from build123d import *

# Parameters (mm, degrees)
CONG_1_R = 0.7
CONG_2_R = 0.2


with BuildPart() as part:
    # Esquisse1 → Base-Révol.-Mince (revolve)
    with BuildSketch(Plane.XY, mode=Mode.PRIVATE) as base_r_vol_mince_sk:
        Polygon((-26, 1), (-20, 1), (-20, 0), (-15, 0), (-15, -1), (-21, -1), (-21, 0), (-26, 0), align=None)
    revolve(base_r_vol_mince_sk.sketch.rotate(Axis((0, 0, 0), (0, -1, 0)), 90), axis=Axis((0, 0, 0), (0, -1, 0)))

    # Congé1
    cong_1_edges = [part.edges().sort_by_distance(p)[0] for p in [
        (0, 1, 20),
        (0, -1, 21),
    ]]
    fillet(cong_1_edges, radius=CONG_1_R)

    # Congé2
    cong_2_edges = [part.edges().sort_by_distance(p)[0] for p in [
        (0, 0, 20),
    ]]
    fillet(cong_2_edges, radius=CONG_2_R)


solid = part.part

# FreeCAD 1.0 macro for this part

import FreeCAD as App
import Part
import Sketcher
from FreeCAD import Vector


def edges_at(feature, points):
    """Names of the edges that pass closest to the given points."""
    edges = feature.Shape.Edges
    near = lambda p: min(range(len(edges)), key=lambda i: edges[i].distToShape(Part.Vertex(*p))[0])
    return sorted({f"Edge{near(p) + 1}" for p in points})


def add_polygon(sketch, points):
    """Adds a closed chain of lines whose ends are joined by coincident constraints."""
    first, n = sketch.GeometryCount, len(points)
    for a, b in zip(points, points[1:] + points[:1]):
        sketch.addGeometry(Part.LineSegment(App.Vector(*a, 0), App.Vector(*b, 0)), False)
    for i in range(n):
        sketch.addConstraint(Sketcher.Constraint("Coincident", first + i, 2, first + (i + 1) % n, 1))

doc = App.newDocument("Part")
body = doc.addObject("PartDesign::Body", "Body")

# Sketch on XY plane
sketch1 = body.newObject("Sketcher::SketchObject", "Sketch")
sketch1.AttachmentSupport = (doc.getObject("XY_Plane"), [""])
sketch1.MapMode = "FlatFace"
add_polygon(sketch1, [(-20, 1), (-26, 1), (-26, 0), (-21, 0), (-21, -1), (-15, -1), (-15, 0), (-20, 0)])  # lines 0-7
sketch1.addConstraint([
    Sketcher.Constraint("Horizontal", 0),
    Sketcher.Constraint("Vertical", 1),
    Sketcher.Constraint("Horizontal", 2),
    Sketcher.Constraint("Vertical", 3),
    Sketcher.Constraint("Horizontal", 4),
    Sketcher.Constraint("Vertical", 5),
    Sketcher.Constraint("Horizontal", 6),
    Sketcher.Constraint("Vertical", 7),
    Sketcher.Constraint("PointOnObject", 1, 2, -1),
    Sketcher.Constraint("PointOnObject", 5, 2, -1),
    Sketcher.Constraint("Equal", 0, 4),
    Sketcher.Constraint("Equal", 1, 3),
    Sketcher.Constraint("DistanceX", 0, 2, 0, 1, 6.0),
    Sketcher.Constraint("DistanceX", 2, 1, 2, 2, 5.0),
    Sketcher.Constraint("DistanceY", 1, 2, 1, 1, 1.0),
    Sketcher.Constraint("DistanceX", 0, 2, -1, 1, 26.0),
])
revolution = body.newObject("PartDesign::Revolution", "Revolution")
revolution.Profile = sketch1
revolution.ReferenceAxis = (sketch1, ["V_Axis"])
revolution.Angle = 360
doc.recompute()

fillet = body.newObject("PartDesign::Fillet", "Fillet")
fillet.Base = (revolution, edges_at(revolution, [(0, 1, 20), (0, -1, 21)]))
fillet.Radius = 0.7
doc.recompute()

fillet2 = body.newObject("PartDesign::Fillet", "Fillet001")
fillet2.Base = (fillet, edges_at(fillet, [(0, 0, 20)]))
fillet2.Radius = 0.2

doc.recompute()
